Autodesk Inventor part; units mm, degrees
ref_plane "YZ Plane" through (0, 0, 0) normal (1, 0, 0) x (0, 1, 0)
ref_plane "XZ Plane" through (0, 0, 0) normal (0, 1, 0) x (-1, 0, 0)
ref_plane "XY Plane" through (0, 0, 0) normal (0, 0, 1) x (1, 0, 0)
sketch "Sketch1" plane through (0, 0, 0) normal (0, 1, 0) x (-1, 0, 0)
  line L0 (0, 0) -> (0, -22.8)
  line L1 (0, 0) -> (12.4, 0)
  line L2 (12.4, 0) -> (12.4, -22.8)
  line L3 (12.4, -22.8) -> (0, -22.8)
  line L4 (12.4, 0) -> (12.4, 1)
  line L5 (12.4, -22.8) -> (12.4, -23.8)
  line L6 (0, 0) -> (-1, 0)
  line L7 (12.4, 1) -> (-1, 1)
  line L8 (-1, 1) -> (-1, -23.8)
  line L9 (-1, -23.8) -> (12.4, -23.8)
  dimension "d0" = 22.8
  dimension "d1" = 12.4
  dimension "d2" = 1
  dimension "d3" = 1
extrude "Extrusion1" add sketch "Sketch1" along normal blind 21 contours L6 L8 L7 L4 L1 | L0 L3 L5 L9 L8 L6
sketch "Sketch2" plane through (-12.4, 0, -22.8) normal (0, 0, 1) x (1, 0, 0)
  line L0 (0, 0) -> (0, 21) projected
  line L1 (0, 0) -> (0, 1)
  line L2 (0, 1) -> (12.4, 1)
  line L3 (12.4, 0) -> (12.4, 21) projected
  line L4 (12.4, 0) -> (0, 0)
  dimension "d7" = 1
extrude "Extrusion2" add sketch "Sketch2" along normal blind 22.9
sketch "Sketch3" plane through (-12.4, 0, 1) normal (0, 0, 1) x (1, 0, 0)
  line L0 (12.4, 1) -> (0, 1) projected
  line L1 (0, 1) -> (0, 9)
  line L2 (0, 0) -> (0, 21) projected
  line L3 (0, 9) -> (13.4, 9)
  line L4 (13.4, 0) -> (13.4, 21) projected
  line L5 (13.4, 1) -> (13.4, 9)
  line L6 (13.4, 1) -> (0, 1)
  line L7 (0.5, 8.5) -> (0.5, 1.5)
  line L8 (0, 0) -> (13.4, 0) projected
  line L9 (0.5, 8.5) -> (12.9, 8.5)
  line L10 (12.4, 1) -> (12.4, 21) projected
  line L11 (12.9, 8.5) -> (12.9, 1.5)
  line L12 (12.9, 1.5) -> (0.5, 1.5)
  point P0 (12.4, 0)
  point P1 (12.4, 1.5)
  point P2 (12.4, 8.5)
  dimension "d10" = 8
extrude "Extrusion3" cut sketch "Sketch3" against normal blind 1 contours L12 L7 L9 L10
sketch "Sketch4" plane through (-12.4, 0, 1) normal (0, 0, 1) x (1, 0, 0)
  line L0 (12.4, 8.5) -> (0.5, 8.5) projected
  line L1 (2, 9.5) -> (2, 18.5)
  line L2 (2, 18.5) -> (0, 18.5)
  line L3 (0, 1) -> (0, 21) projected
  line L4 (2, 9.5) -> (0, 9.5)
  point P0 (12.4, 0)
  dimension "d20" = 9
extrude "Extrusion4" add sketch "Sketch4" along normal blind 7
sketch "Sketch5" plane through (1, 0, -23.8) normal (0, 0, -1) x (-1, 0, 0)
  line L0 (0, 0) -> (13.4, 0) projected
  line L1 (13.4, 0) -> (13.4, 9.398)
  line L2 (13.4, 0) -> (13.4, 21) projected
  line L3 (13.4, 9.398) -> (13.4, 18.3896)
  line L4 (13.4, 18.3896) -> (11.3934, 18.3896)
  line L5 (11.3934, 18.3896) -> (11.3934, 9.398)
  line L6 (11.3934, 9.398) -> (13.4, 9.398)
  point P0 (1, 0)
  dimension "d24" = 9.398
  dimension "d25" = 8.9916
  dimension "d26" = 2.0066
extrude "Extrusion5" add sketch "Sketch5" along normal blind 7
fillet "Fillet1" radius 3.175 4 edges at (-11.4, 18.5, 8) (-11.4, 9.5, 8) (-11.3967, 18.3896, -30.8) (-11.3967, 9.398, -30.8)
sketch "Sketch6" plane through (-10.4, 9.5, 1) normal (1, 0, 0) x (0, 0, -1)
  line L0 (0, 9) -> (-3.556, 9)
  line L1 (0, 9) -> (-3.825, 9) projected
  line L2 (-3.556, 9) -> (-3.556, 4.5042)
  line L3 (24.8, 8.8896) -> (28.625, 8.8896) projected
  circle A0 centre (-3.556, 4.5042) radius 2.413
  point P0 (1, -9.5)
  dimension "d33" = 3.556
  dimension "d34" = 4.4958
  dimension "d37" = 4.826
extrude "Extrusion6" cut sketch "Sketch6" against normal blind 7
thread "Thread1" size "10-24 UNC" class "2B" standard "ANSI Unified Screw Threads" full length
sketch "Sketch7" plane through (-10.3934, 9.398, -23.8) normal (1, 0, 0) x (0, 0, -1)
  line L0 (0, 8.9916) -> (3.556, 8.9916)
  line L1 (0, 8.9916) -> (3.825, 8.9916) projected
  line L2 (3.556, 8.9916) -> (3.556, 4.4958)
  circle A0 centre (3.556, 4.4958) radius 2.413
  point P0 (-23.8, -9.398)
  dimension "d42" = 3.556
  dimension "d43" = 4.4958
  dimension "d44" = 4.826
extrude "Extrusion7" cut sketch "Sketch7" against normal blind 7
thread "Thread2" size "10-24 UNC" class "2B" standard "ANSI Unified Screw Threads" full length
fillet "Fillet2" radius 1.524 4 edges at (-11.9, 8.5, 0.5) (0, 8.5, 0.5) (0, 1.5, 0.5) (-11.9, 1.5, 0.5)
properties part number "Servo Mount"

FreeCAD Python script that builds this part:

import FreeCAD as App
import Part
import Sketcher


def edges_at(feature, points):
    """Names of the edges that pass closest to the given points."""
    edges = feature.Shape.Edges
    near = lambda p: min(range(len(edges)), key=lambda i: edges[i].distToShape(Part.Vertex(*p))[0])
    return sorted({f"Edge{near(p) + 1}" for p in points})

doc = App.newDocument("Part")
body = doc.addObject("PartDesign::Body", "Body")

# Sketch on XZ plane
sketch1 = body.newObject("Sketcher::SketchObject", "Sketch")
sketch1.AttachmentSupport = (doc.getObject("XZ_Plane"), [""])
sketch1.MapMode = "FlatFace"
sketch1.addGeometry([
    Part.LineSegment(App.Vector(1, 1, 0), App.Vector(1, -23.8, 0)),  # 0
    Part.LineSegment(App.Vector(1, -23.8, 0), App.Vector(-12.4, -23.8, 0)),  # 1
    Part.LineSegment(App.Vector(-12.4, -23.8, 0), App.Vector(-12.4, -22.8, 0)),  # 2
    Part.LineSegment(App.Vector(-12.4, -22.8, 0), App.Vector(0, -22.8, 0)),  # 3
    Part.LineSegment(App.Vector(0, -22.8, 0), App.Vector(0, 0, 0)),  # 4
    Part.LineSegment(App.Vector(0, 0, 0), App.Vector(-12.4, 0, 0)),  # 5
    Part.LineSegment(App.Vector(-12.4, 0, 0), App.Vector(-12.4, 1, 0)),  # 6
    Part.LineSegment(App.Vector(-12.4, 1, 0), App.Vector(1, 1, 0)),  # 7
], False)
sketch1.addConstraint([
    Sketcher.Constraint("Coincident", 0, 2, 1, 1),
    Sketcher.Constraint("Coincident", 1, 2, 2, 1),
    Sketcher.Constraint("Coincident", 2, 2, 3, 1),
    Sketcher.Constraint("Coincident", 3, 2, 4, 1),
    Sketcher.Constraint("Coincident", 4, 2, 5, 1),
    Sketcher.Constraint("Coincident", 5, 2, 6, 1),
    Sketcher.Constraint("Coincident", 6, 2, 7, 1),
    Sketcher.Constraint("Coincident", 7, 2, 0, 1),
    Sketcher.Constraint("Vertical", 0),
    Sketcher.Constraint("Horizontal", 1),
    Sketcher.Constraint("Vertical", 2),
    Sketcher.Constraint("Horizontal", 3),
    Sketcher.Constraint("Vertical", 4),
    Sketcher.Constraint("Horizontal", 5),
    Sketcher.Constraint("Vertical", 6),
    Sketcher.Constraint("Horizontal", 7),
    Sketcher.Constraint("Coincident", 4, 2, -1, 1),
    Sketcher.Constraint("Vertical", 2, 2, 5, 2),
    Sketcher.Constraint("Equal", 2, 6),
    Sketcher.Constraint("DistanceY", 2, 1, 2, 2, 1.0),
    Sketcher.Constraint("DistanceX", 3, 1, 3, 2, 12.4),
    Sketcher.Constraint("DistanceY", 4, 1, 4, 2, 22.8),
    Sketcher.Constraint("DistanceX", -1, 1, 0, 2, 1.0),
])
pad1 = body.newObject("PartDesign::Pad", "Pad")
pad1.Profile = sketch1
pad1.Length = 21
pad1.Reversed = True

# Sketch on XY plane
sketch2 = body.newObject("Sketcher::SketchObject", "Sketch001")
sketch2.AttachmentSupport = (doc.getObject("XY_Plane"), [""])
sketch2.MapMode = "FlatFace"
sketch2.AttachmentOffset = App.Placement(App.Vector(0, 0, -22.8), App.Rotation())
sketch2.addGeometry([
    Part.LineSegment(App.Vector(-12.4, 1, 0), App.Vector(-12.4, 0, 0)),
    Part.LineSegment(App.Vector(-12.4, 0, 0), App.Vector(0, 0, 0)),
    Part.LineSegment(App.Vector(0, 0, 0), App.Vector(0, 1, 0)),
    Part.LineSegment(App.Vector(0, 1, 0), App.Vector(-12.4, 1, 0)),
], False)
sketch2.addConstraint([
    Sketcher.Constraint("Coincident", 0, 2, 1, 1),
    Sketcher.Constraint("Coincident", 1, 2, 2, 1),
    Sketcher.Constraint("Coincident", 2, 2, 3, 1),
    Sketcher.Constraint("Coincident", 3, 2, 0, 1),
    Sketcher.Constraint("Vertical", 0),
    Sketcher.Constraint("Horizontal", 1),
    Sketcher.Constraint("Vertical", 2),
    Sketcher.Constraint("Horizontal", 3),
    Sketcher.Constraint("Coincident", 1, 2, -1, 1),
    Sketcher.Constraint("DistanceY", 0, 2, 0, 1, 1.0),
    Sketcher.Constraint("DistanceX", 1, 1, 1, 2, 12.4),
])
pad2 = body.newObject("PartDesign::Pad", "Pad001")
pad2.Profile = sketch2
pad2.Length = 22.9

# Sketch on XY plane
sketch3 = body.newObject("Sketcher::SketchObject", "Sketch002")
sketch3.AttachmentSupport = (doc.getObject("XY_Plane"), [""])
sketch3.MapMode = "FlatFace"
sketch3.AttachmentOffset = App.Placement(App.Vector(0, 0, 1), App.Rotation())
sketch3.addGeometry([
    Part.LineSegment(App.Vector(-12, 2, 0), App.Vector(0, 2, 0)),
    Part.LineSegment(App.Vector(0, 2, 0), App.Vector(0, 8, 0)),
    Part.LineSegment(App.Vector(0, 8, 0), App.Vector(-12, 8, 0)),
    Part.LineSegment(App.Vector(-12, 8, 0), App.Vector(-12, 2, 0)),
], False)
sketch3.addConstraint([
    Sketcher.Constraint("Coincident", 0, 2, 1, 1),
    Sketcher.Constraint("Coincident", 1, 2, 2, 1),
    Sketcher.Constraint("Coincident", 2, 2, 3, 1),
    Sketcher.Constraint("Coincident", 3, 2, 0, 1),
    Sketcher.Constraint("Horizontal", 0),
    Sketcher.Constraint("Vertical", 1),
    Sketcher.Constraint("Horizontal", 2),
    Sketcher.Constraint("Vertical", 3),
    Sketcher.Constraint("PointOnObject", 0, 2, -2),
    Sketcher.Constraint("DistanceY", 1, 1, 1, 2, 7.0),
    Sketcher.Constraint("DistanceX", 0, 1, 0, 2, 11.9),
    Sketcher.Constraint("DistanceY", -1, 1, 0, 2, 1.5),
])
pocket1 = body.newObject("PartDesign::Pocket", "Pocket")
pocket1.Profile = sketch3
pocket1.Length = 1

# Sketch on XY plane
sketch4 = body.newObject("Sketcher::SketchObject", "Sketch003")
sketch4.AttachmentSupport = (doc.getObject("XY_Plane"), [""])
sketch4.MapMode = "FlatFace"
sketch4.AttachmentOffset = App.Placement(App.Vector(0, 0, 1), App.Rotation())
sketch4.addGeometry([
    Part.LineSegment(App.Vector(-12.4, 9.5, 0), App.Vector(-10.4, 9.5, 0)),
    Part.LineSegment(App.Vector(-10.4, 9.5, 0), App.Vector(-10.4, 18.5, 0)),
    Part.LineSegment(App.Vector(-10.4, 18.5, 0), App.Vector(-12.4, 18.5, 0)),
    Part.LineSegment(App.Vector(-12.4, 18.5, 0), App.Vector(-12.4, 9.5, 0)),
], False)
sketch4.addConstraint([
    Sketcher.Constraint("Coincident", 0, 2, 1, 1),
    Sketcher.Constraint("Coincident", 1, 2, 2, 1),
    Sketcher.Constraint("Coincident", 2, 2, 3, 1),
    Sketcher.Constraint("Coincident", 3, 2, 0, 1),
    Sketcher.Constraint("Horizontal", 0),
    Sketcher.Constraint("Vertical", 1),
    Sketcher.Constraint("Horizontal", 2),
    Sketcher.Constraint("Vertical", 3),
    Sketcher.Constraint("DistanceY", 1, 1, 1, 2, 9.0),
    Sketcher.Constraint("DistanceX", 0, 1, 0, 2, 2.0),
    Sketcher.Constraint("DistanceX", 0, 2, -1, 1, 10.4),
    Sketcher.Constraint("DistanceY", -1, 1, 0, 2, 9.5),
])
pad3 = body.newObject("PartDesign::Pad", "Pad002")
pad3.Profile = sketch4
pad3.Length = 7

# Sketch on XY plane
sketch5 = body.newObject("Sketcher::SketchObject", "Sketch004")
sketch5.AttachmentSupport = (doc.getObject("XY_Plane"), [""])
sketch5.MapMode = "FlatFace"
sketch5.AttachmentOffset = App.Placement(App.Vector(0, 0, -23.8), App.Rotation())
sketch5.addGeometry([
    Part.LineSegment(App.Vector(-10.4, 9.4, 0), App.Vector(-12.4, 9.4, 0)),
    Part.LineSegment(App.Vector(-12.4, 9.4, 0), App.Vector(-12.4, 18.4, 0)),
    Part.LineSegment(App.Vector(-12.4, 18.4, 0), App.Vector(-10.4, 18.4, 0)),
    Part.LineSegment(App.Vector(-10.4, 18.4, 0), App.Vector(-10.4, 9.4, 0)),
], False)
sketch5.addConstraint([
    Sketcher.Constraint("Coincident", 0, 2, 1, 1),
    Sketcher.Constraint("Coincident", 1, 2, 2, 1),
    Sketcher.Constraint("Coincident", 2, 2, 3, 1),
    Sketcher.Constraint("Coincident", 3, 2, 0, 1),
    Sketcher.Constraint("Horizontal", 0),
    Sketcher.Constraint("Vertical", 1),
    Sketcher.Constraint("Horizontal", 2),
    Sketcher.Constraint("Vertical", 3),
    Sketcher.Constraint("DistanceX", 0, 2, 0, 1, 2.0066),
    Sketcher.Constraint("DistanceY", 1, 1, 1, 2, 8.9916),
    Sketcher.Constraint("DistanceY", -1, 1, 0, 2, 9.398),
    Sketcher.Constraint("DistanceX", 0, 2, -1, 1, 12.4),
])
pad4 = body.newObject("PartDesign::Pad", "Pad003")
pad4.Profile = sketch5
pad4.Length = 7
pad4.Reversed = True
doc.recompute()

fillet = body.newObject("PartDesign::Fillet", "Fillet")
fillet.Base = (pad4, edges_at(pad4, [
    (-11.4, 18.5, 8),
    (-11.4, 9.5, 8),
    (-11.397, 18.39, -30.8),
    (-11.397, 9.398, -30.8),
]))
fillet.Radius = 3.175

# Sketch on YZ plane
sketch6 = body.newObject("Sketcher::SketchObject", "Sketch005")
sketch6.AttachmentSupport = (doc.getObject("YZ_Plane"), [""])
sketch6.MapMode = "FlatFace"
sketch6.AttachmentOffset = App.Placement(App.Vector(0, 0, -10.4), App.Rotation())
sketch6.addGeometry(Part.Circle(App.Vector(14, 4.6, 0), App.Vector(0, 0, 1), 2.4), False)
sketch6.addConstraint([
    Sketcher.Constraint("Diameter", 0, 4.826),
    Sketcher.Constraint("DistanceY", -1, 1, 0, 3, 4.556),
    Sketcher.Constraint("DistanceX", -1, 1, 0, 3, 14.0042),
])
pocket2 = body.newObject("PartDesign::Pocket", "Pocket001")
pocket2.Profile = sketch6
pocket2.Length = 7

# Sketch on YZ plane
sketch7 = body.newObject("Sketcher::SketchObject", "Sketch006")
sketch7.AttachmentSupport = (doc.getObject("YZ_Plane"), [""])
sketch7.MapMode = "FlatFace"
sketch7.AttachmentOffset = App.Placement(App.Vector(0, 0, -10.3934), App.Rotation())
sketch7.addGeometry(Part.Circle(App.Vector(13.9, -27.4, 0), App.Vector(0, 0, 1), 2.4), False)
sketch7.addConstraint([
    Sketcher.Constraint("Diameter", 0, 4.826),
    Sketcher.Constraint("DistanceY", 0, 3, -1, 1, 27.356),
    Sketcher.Constraint("DistanceX", -1, 1, 0, 3, 13.8938),
])
pocket3 = body.newObject("PartDesign::Pocket", "Pocket002")
pocket3.Profile = sketch7
pocket3.Length = 7
doc.recompute()

fillet2 = body.newObject("PartDesign::Fillet", "Fillet001")
fillet2.Base = (pocket3, edges_at(pocket3, [
    (-11.9, 8.5, 0.5),
    (0, 8.5, 0.5),
    (0, 1.5, 0.5),
    (-11.9, 1.5, 0.5),
]))
fillet2.Radius = 1.524

doc.recompute()
